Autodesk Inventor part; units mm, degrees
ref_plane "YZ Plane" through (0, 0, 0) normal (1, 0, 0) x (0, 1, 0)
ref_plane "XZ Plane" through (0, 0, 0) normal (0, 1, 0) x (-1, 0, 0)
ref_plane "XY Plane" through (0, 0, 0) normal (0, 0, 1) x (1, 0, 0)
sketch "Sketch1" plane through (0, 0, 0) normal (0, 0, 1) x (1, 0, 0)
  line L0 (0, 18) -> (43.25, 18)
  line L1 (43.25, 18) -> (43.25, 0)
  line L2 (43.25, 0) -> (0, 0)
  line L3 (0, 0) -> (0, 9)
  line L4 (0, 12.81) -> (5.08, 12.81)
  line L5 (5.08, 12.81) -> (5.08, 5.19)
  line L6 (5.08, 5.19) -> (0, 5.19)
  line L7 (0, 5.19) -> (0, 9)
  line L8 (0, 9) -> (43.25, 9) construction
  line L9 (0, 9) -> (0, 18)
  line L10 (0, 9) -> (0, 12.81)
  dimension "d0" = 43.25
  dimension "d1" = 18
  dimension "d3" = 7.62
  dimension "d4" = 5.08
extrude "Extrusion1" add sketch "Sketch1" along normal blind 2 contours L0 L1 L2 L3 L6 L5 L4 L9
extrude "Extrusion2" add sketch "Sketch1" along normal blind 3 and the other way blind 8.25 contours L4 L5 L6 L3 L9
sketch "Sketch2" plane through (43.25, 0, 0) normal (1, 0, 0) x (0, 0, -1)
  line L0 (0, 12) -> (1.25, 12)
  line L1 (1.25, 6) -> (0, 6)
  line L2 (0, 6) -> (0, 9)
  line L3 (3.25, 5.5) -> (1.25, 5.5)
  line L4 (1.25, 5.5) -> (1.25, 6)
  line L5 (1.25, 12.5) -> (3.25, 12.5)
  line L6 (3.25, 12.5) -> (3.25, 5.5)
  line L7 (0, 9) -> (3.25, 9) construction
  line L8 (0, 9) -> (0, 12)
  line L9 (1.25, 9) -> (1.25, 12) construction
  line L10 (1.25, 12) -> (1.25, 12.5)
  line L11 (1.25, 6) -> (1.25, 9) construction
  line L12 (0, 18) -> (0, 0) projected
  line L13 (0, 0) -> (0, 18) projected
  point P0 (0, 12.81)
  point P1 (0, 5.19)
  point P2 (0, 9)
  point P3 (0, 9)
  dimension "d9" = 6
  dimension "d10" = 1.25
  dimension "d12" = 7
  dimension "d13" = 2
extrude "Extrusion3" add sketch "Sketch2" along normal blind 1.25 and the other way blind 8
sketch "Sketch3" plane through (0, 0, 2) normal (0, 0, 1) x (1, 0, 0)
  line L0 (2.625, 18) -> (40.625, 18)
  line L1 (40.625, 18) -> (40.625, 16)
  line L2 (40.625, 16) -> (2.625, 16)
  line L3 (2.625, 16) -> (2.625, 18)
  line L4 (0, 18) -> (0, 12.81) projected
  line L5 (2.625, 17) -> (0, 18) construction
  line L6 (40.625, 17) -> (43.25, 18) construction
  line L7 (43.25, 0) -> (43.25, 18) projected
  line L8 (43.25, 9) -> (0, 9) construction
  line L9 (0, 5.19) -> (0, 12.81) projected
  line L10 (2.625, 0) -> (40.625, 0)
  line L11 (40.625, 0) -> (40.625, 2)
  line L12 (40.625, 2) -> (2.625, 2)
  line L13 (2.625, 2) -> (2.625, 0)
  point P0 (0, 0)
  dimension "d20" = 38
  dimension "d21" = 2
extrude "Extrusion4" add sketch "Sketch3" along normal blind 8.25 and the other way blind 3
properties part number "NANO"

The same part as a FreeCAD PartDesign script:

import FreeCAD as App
import Part
import Sketcher
from FreeCAD import Vector
Q = App.Units.Quantity


def add_polygon(sketch, points):
    """Adds a closed chain of lines whose ends are joined by coincident constraints."""
    first, n = sketch.GeometryCount, len(points)
    for a, b in zip(points, points[1:] + points[:1]):
        sketch.addGeometry(Part.LineSegment(App.Vector(*a, 0), App.Vector(*b, 0)), False)
    for i in range(n):
        sketch.addConstraint(Sketcher.Constraint("Coincident", first + i, 2, first + (i + 1) % n, 1))

doc = App.newDocument("Part")
body = doc.addObject("PartDesign::Body", "Body")

# Sketch on XY plane
sketch1 = doc.addObject("Sketcher::SketchObject", "Sketch")
body.addObject(sketch1)
sketch1.AttachmentSupport = (doc.XY_Plane, [""])
sketch1.MapMode = "FlatFace"
add_polygon(sketch1, [(43, 18), (0, 18), (0, 13), (5, 13), (5, 5), (0, 5), (0, 0), (43, 0)])  # lines 0-7
sketch1.addConstraint(Sketcher.Constraint("Horizontal", 0))
sketch1.addConstraint(Sketcher.Constraint("Vertical", 1))
sketch1.addConstraint(Sketcher.Constraint("Horizontal", 2))
sketch1.addConstraint(Sketcher.Constraint("Vertical", 3))
sketch1.addConstraint(Sketcher.Constraint("Horizontal", 4))
sketch1.addConstraint(Sketcher.Constraint("Vertical", 5))
sketch1.addConstraint(Sketcher.Constraint("Horizontal", 6))
sketch1.addConstraint(Sketcher.Constraint("Vertical", 7))
sketch1.addConstraint(Sketcher.Constraint("Coincident", 5, 2, -1, 1))
sketch1.addConstraint(Sketcher.Constraint("PointOnObject", 0, 2, -2))
sketch1.addConstraint(Sketcher.Constraint("Equal", 1, 5))
sketch1.addConstraint(Sketcher.Constraint("DistanceY", 7, 1, 7, 2, Q("18 mm")))
sketch1.addConstraint(Sketcher.Constraint("DistanceX", 0, 2, 0, 1, Q("43.25 mm")))
sketch1.addConstraint(Sketcher.Constraint("DistanceX", 2, 1, 2, 2, Q("5.08 mm")))
sketch1.addConstraint(Sketcher.Constraint("DistanceY", 3, 2, 3, 1, Q("7.62 mm")))
pad1 = doc.addObject("PartDesign::Pad", "Pad")
body.addObject(pad1)
pad1.Profile = sketch1
pad1.Length = 2

# Sketch on XY plane
sketch2 = doc.addObject("Sketcher::SketchObject", "Sketch001")
body.addObject(sketch2)
sketch2.AttachmentSupport = (doc.XY_Plane, [""])
sketch2.MapMode = "FlatFace"
add_polygon(sketch2, [(5, 13), (0, 13), (0, 5), (5, 5)])  # lines 0-3
sketch2.addConstraint(Sketcher.Constraint("Horizontal", 0))
sketch2.addConstraint(Sketcher.Constraint("Vertical", 1))
sketch2.addConstraint(Sketcher.Constraint("Horizontal", 2))
sketch2.addConstraint(Sketcher.Constraint("Vertical", 3))
sketch2.addConstraint(Sketcher.Constraint("PointOnObject", 0, 2, -2))
sketch2.addConstraint(Sketcher.Constraint("DistanceX", 0, 2, 0, 1, Q("5.08 mm")))
sketch2.addConstraint(Sketcher.Constraint("DistanceY", 1, 2, 1, 1, Q("7.62 mm")))
sketch2.addConstraint(Sketcher.Constraint("DistanceY", -1, 1, 0, 2, Q("12.81 mm")))
pad2 = doc.addObject("PartDesign::Pad", "Pad001")
body.addObject(pad2)
pad2.Profile = sketch2
pad2.Type = "TwoLengths"
pad2.Length = 3
pad2.Length2 = 8.25

# Sketch on YZ plane
sketch3 = doc.addObject("Sketcher::SketchObject", "Sketch002")
body.addObject(sketch3)
sketch3.AttachmentSupport = (doc.YZ_Plane, [""])
sketch3.MapMode = "FlatFace"
sketch3.AttachmentOffset = App.Placement(Vector(0, 0, 43.25), App.Rotation())
add_polygon(sketch3, [(12, -1.2), (12, 0), (6, 0), (6, -1.2), (5.5, -1.2), (5.5, -3.2), (12.5, -3.2), (12.5, -1.2)])  # lines 0-7
sketch3.addConstraint(Sketcher.Constraint("Vertical", 0))
sketch3.addConstraint(Sketcher.Constraint("Horizontal", 1))
sketch3.addConstraint(Sketcher.Constraint("Vertical", 2))
sketch3.addConstraint(Sketcher.Constraint("Horizontal", 3))
sketch3.addConstraint(Sketcher.Constraint("Vertical", 4))
sketch3.addConstraint(Sketcher.Constraint("Horizontal", 5))
sketch3.addConstraint(Sketcher.Constraint("Vertical", 6))
sketch3.addConstraint(Sketcher.Constraint("Horizontal", 7))
sketch3.addConstraint(Sketcher.Constraint("PointOnObject", 0, 2, -1))
sketch3.addConstraint(Sketcher.Constraint("Horizontal", 3, 2, 6, 2))
sketch3.addConstraint(Sketcher.Constraint("Equal", 3, 7))
sketch3.addConstraint(Sketcher.Constraint("DistanceX", 1, 2, 1, 1, Q("6 mm")))
sketch3.addConstraint(Sketcher.Constraint("DistanceX", 5, 1, 5, 2, Q("7 mm")))
sketch3.addConstraint(Sketcher.Constraint("DistanceY", 4, 2, 4, 1, Q("2 mm")))
sketch3.addConstraint(Sketcher.Constraint("DistanceX", -1, 1, 1, 2, Q("6 mm")))
sketch3.addConstraint(Sketcher.Constraint("DistanceY", 0, 1, 0, 2, Q("1.25 mm")))
pad3 = doc.addObject("PartDesign::Pad", "Pad002")
body.addObject(pad3)
pad3.Profile = sketch3
pad3.Type = "TwoLengths"
pad3.Length = 1.25
pad3.Length2 = 8

# Sketch on XY plane
sketch4 = doc.addObject("Sketcher::SketchObject", "Sketch003")
body.addObject(sketch4)
sketch4.AttachmentSupport = (doc.XY_Plane, [""])
sketch4.MapMode = "FlatFace"
sketch4.AttachmentOffset = App.Placement(Vector(0, 0, 2), App.Rotation())
add_polygon(sketch4, [(40.6, 18), (2.6, 18), (2.6, 16), (40.6, 16)])  # lines 0-3
add_polygon(sketch4, [(2.6, 2), (2.6, 0), (40.6, 0), (40.6, 2)])  # lines 4-7
sketch4.addConstraint(Sketcher.Constraint("Horizontal", 0))
sketch4.addConstraint(Sketcher.Constraint("Vertical", 1))
sketch4.addConstraint(Sketcher.Constraint("Horizontal", 2))
sketch4.addConstraint(Sketcher.Constraint("Vertical", 3))
sketch4.addConstraint(Sketcher.Constraint("Vertical", 4))
sketch4.addConstraint(Sketcher.Constraint("Horizontal", 5))
sketch4.addConstraint(Sketcher.Constraint("Vertical", 6))
sketch4.addConstraint(Sketcher.Constraint("Horizontal", 7))
sketch4.addConstraint(Sketcher.Constraint("PointOnObject", 4, 2, -1))
sketch4.addConstraint(Sketcher.Constraint("Vertical", 1, 2, 4, 2))
sketch4.addConstraint(Sketcher.Constraint("Vertical", 3, 2, 5, 2))
sketch4.addConstraint(Sketcher.Constraint("Equal", 3, 4))
sketch4.addConstraint(Sketcher.Constraint("DistanceX", 0, 2, 0, 1, Q("38 mm")))
sketch4.addConstraint(Sketcher.Constraint("DistanceY", 1, 2, 1, 1, Q("2 mm")))
sketch4.addConstraint(Sketcher.Constraint("DistanceY", -1, 1, 0, 2, Q("18 mm")))
sketch4.addConstraint(Sketcher.Constraint("DistanceX", -1, 1, 0, 2, Q("2.625 mm")))
pad4 = doc.addObject("PartDesign::Pad", "Pad003")
body.addObject(pad4)
pad4.Profile = sketch4
pad4.Type = "TwoLengths"
pad4.Length = 8.25
pad4.Length2 = 3

doc.recompute()
